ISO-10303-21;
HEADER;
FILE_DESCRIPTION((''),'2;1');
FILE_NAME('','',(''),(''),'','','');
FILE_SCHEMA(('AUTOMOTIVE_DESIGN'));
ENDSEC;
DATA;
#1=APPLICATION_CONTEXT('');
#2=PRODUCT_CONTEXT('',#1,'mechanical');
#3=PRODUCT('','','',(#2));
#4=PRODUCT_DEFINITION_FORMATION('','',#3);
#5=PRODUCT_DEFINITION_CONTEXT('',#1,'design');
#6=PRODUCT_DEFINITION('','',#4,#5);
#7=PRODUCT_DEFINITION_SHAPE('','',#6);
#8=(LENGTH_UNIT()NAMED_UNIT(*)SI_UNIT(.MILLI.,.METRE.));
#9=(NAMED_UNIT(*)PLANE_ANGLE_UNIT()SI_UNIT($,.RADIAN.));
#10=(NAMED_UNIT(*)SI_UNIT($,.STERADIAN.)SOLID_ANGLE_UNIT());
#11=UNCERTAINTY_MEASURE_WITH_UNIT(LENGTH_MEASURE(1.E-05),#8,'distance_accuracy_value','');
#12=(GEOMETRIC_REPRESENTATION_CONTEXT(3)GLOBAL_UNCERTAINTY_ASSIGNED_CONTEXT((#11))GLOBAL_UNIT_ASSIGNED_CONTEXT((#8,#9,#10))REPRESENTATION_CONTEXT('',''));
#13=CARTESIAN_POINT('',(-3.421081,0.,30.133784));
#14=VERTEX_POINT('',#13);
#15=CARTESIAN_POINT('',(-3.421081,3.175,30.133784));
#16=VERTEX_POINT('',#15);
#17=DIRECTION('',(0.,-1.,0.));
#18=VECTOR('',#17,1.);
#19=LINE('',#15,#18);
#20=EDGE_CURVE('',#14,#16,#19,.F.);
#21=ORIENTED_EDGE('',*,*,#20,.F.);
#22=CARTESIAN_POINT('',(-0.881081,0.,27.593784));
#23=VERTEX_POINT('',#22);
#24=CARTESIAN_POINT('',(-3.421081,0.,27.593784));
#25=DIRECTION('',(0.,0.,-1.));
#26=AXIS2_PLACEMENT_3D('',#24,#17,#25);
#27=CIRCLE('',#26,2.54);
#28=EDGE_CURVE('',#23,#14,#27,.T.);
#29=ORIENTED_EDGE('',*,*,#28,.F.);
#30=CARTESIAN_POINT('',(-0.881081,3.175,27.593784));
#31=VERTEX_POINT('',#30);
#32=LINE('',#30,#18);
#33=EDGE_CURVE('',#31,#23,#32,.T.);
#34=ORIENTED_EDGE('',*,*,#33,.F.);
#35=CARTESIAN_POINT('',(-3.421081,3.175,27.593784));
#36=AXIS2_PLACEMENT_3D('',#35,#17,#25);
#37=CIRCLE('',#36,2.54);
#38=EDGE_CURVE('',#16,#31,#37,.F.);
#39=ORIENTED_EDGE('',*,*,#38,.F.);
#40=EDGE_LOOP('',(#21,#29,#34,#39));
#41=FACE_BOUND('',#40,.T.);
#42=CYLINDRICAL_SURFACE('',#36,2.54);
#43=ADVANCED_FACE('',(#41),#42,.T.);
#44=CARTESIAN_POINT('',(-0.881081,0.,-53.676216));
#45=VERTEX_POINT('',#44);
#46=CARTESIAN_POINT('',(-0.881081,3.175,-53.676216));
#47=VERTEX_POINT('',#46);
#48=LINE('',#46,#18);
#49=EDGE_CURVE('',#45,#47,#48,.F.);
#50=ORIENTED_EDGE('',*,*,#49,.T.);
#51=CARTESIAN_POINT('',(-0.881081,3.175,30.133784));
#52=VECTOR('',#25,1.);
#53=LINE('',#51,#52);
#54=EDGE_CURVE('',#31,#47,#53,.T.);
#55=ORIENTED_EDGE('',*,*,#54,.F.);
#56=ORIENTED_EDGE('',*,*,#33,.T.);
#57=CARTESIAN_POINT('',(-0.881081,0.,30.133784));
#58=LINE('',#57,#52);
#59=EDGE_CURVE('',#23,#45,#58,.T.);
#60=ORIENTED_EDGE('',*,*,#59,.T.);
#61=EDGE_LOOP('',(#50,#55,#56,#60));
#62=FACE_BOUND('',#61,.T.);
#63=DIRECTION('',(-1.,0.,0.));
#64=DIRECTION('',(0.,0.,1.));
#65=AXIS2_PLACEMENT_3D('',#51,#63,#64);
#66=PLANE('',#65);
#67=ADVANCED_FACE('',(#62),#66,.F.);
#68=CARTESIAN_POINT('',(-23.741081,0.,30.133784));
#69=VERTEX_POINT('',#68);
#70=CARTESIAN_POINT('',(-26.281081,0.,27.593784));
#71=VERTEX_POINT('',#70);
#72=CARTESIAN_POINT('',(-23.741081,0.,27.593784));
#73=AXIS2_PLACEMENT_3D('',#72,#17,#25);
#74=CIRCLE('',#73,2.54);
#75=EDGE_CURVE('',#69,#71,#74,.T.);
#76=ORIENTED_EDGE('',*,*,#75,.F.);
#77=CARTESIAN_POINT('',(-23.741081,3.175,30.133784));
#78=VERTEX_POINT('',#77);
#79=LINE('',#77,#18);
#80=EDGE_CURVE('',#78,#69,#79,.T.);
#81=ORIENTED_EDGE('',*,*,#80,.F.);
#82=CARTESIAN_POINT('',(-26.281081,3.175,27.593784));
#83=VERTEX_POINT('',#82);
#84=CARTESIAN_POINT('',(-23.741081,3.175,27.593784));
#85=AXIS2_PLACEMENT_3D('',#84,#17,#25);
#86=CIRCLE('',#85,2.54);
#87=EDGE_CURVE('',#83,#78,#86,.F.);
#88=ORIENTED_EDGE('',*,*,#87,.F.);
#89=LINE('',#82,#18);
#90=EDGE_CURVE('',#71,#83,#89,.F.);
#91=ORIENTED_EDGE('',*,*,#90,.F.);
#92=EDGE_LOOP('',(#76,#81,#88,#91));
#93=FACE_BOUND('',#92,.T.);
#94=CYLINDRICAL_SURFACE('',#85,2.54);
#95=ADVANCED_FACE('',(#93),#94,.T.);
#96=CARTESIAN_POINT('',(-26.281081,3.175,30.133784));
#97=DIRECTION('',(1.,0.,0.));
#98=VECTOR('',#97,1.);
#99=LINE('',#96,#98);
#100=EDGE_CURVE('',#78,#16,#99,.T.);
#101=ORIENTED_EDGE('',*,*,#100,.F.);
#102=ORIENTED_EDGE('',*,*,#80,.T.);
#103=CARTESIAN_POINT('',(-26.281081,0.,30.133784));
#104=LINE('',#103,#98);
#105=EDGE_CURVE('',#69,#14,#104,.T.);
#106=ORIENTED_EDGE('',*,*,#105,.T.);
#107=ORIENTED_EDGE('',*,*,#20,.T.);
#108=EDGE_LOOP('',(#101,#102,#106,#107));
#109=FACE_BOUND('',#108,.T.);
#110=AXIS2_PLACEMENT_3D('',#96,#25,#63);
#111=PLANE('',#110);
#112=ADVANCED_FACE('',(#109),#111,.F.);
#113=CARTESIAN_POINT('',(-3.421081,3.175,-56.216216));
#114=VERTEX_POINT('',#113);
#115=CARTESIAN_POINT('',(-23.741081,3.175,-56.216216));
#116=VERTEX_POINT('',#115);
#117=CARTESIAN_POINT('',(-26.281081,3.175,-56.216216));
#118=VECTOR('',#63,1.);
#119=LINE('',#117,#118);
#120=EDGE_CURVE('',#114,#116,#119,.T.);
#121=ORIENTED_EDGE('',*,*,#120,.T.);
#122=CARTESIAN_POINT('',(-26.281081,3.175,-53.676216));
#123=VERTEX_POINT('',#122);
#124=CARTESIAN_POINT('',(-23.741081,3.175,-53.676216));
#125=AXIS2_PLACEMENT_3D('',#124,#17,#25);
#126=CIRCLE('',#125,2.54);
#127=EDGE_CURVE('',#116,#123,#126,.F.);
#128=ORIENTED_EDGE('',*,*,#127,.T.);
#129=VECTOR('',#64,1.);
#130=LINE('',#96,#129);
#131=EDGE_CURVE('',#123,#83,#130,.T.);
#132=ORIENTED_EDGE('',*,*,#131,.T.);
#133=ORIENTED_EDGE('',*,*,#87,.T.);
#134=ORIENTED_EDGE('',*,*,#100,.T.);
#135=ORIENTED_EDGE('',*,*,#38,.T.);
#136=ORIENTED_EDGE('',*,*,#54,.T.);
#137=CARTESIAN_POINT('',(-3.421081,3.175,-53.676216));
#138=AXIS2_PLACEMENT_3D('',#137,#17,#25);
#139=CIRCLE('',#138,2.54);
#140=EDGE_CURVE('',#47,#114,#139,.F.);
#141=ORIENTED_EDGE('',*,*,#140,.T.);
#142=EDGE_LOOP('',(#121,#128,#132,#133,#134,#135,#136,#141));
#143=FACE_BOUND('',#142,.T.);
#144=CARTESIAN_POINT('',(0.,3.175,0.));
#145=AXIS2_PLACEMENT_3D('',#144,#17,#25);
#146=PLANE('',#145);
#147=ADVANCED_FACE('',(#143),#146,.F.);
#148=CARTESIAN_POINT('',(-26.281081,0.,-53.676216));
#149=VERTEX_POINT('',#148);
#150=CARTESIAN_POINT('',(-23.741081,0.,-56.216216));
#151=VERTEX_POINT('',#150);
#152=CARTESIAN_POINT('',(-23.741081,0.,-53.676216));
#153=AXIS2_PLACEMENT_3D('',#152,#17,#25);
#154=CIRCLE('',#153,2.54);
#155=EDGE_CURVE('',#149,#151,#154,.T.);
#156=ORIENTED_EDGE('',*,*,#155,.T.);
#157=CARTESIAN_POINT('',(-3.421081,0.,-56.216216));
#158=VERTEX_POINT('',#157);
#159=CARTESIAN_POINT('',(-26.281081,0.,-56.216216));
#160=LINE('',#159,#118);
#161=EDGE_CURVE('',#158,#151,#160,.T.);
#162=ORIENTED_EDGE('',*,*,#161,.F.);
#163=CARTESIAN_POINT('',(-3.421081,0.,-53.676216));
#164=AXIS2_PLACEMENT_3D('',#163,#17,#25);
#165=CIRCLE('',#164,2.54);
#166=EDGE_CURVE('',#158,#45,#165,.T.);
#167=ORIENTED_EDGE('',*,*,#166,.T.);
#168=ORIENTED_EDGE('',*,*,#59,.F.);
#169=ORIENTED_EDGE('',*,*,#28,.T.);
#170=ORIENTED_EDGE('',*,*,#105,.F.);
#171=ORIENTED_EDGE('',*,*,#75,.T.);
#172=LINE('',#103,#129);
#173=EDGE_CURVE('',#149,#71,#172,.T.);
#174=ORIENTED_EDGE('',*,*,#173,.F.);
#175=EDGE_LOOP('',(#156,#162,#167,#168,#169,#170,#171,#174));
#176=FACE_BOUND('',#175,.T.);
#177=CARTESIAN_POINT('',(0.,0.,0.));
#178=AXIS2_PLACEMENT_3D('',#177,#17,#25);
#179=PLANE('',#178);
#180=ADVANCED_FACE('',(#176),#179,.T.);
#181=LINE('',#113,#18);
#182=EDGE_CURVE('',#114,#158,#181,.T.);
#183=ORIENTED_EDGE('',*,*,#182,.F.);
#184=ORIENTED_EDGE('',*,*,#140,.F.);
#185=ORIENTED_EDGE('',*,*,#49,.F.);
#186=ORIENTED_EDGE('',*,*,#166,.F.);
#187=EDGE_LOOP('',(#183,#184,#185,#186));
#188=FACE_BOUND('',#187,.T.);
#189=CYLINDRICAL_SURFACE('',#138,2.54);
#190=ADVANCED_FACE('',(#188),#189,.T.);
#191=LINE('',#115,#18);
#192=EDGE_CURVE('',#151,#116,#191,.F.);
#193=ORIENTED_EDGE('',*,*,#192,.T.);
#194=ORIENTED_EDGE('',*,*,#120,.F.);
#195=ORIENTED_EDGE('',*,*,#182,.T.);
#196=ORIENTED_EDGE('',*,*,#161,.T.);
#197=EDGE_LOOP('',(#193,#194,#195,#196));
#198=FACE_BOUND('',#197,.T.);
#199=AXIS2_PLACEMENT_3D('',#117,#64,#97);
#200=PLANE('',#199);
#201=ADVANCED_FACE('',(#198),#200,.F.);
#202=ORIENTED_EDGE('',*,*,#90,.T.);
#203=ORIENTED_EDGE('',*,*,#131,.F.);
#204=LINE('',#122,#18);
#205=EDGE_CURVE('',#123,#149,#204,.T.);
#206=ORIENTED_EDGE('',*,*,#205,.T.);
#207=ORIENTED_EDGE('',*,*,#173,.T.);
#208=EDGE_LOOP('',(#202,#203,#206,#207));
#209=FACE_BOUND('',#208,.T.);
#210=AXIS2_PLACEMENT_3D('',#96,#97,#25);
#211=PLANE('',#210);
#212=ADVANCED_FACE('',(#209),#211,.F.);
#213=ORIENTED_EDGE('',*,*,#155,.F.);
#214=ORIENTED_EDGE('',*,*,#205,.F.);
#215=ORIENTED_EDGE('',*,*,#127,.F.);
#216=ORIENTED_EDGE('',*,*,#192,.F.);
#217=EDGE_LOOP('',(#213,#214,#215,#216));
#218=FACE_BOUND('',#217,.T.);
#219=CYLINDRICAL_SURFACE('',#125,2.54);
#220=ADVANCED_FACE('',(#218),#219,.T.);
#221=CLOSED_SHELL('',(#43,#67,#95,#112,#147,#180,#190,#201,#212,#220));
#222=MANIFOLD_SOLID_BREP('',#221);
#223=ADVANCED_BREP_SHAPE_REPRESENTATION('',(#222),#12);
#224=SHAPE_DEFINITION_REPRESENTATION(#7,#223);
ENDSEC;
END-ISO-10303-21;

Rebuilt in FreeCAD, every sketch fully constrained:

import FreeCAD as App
import Part
import Sketcher
from FreeCAD import Vector
Q = App.Units.Quantity


def edges_at(feature, points):
    """Names of the edges that pass closest to the given points."""
    edges = feature.Shape.Edges
    near = lambda p: min(range(len(edges)), key=lambda i: edges[i].distToShape(Part.Vertex(*p))[0])
    return sorted({f"Edge{near(p) + 1}" for p in points})


def add_polygon(sketch, points):
    """Adds a closed chain of lines whose ends are joined by coincident constraints."""
    first, n = sketch.GeometryCount, len(points)
    for a, b in zip(points, points[1:] + points[:1]):
        sketch.addGeometry(Part.LineSegment(App.Vector(*a, 0), App.Vector(*b, 0)), False)
    for i in range(n):
        sketch.addConstraint(Sketcher.Constraint("Coincident", first + i, 2, first + (i + 1) % n, 1))

doc = App.newDocument("Part")
body = doc.addObject("PartDesign::Body", "Body")

# Sketch on XZ plane
sketch1 = doc.addObject("Sketcher::SketchObject", "Sketch")
body.addObject(sketch1)
sketch1.AttachmentSupport = (doc.XZ_Plane, [""])
sketch1.MapMode = "FlatFace"
add_polygon(sketch1, [(-26, -56), (-26, 30), (-1, 30), (-1, -56)])  # lines 0-3
sketch1.addConstraint([
    Sketcher.Constraint("Vertical", 0),
    Sketcher.Constraint("Horizontal", 1),
    Sketcher.Constraint("Vertical", 2),
    Sketcher.Constraint("Horizontal", 3),
    Sketcher.Constraint("DistanceX", 1, 1, 1, 2, Q("1 in")),
    Sketcher.Constraint("DistanceY", 0, 1, 0, 2, 86.35),
    Sketcher.Constraint("DistanceX", 0, 2, -1, 1, 26.281081),
    Sketcher.Constraint("DistanceY", -1, 1, 0, 2, 30.133784),
])
pad1 = doc.addObject("PartDesign::Pad", "Pad")
body.addObject(pad1)
pad1.Profile = sketch1
pad1.Length = Q("0.125 in")
pad1.Reversed = True
doc.recompute()

fillet = doc.addObject("PartDesign::Fillet", "Fillet")
body.addObject(fillet)
fillet.Base = (pad1, edges_at(pad1, [
    (-26.281, 1.587, -56.216),
    (-0.881, 1.587, -56.216),
    (-0.881, 1.587, 30.134),
    (-26.281, 1.587, 30.134),
]))
fillet.Radius = Q("0.1 in")

doc.recompute()
